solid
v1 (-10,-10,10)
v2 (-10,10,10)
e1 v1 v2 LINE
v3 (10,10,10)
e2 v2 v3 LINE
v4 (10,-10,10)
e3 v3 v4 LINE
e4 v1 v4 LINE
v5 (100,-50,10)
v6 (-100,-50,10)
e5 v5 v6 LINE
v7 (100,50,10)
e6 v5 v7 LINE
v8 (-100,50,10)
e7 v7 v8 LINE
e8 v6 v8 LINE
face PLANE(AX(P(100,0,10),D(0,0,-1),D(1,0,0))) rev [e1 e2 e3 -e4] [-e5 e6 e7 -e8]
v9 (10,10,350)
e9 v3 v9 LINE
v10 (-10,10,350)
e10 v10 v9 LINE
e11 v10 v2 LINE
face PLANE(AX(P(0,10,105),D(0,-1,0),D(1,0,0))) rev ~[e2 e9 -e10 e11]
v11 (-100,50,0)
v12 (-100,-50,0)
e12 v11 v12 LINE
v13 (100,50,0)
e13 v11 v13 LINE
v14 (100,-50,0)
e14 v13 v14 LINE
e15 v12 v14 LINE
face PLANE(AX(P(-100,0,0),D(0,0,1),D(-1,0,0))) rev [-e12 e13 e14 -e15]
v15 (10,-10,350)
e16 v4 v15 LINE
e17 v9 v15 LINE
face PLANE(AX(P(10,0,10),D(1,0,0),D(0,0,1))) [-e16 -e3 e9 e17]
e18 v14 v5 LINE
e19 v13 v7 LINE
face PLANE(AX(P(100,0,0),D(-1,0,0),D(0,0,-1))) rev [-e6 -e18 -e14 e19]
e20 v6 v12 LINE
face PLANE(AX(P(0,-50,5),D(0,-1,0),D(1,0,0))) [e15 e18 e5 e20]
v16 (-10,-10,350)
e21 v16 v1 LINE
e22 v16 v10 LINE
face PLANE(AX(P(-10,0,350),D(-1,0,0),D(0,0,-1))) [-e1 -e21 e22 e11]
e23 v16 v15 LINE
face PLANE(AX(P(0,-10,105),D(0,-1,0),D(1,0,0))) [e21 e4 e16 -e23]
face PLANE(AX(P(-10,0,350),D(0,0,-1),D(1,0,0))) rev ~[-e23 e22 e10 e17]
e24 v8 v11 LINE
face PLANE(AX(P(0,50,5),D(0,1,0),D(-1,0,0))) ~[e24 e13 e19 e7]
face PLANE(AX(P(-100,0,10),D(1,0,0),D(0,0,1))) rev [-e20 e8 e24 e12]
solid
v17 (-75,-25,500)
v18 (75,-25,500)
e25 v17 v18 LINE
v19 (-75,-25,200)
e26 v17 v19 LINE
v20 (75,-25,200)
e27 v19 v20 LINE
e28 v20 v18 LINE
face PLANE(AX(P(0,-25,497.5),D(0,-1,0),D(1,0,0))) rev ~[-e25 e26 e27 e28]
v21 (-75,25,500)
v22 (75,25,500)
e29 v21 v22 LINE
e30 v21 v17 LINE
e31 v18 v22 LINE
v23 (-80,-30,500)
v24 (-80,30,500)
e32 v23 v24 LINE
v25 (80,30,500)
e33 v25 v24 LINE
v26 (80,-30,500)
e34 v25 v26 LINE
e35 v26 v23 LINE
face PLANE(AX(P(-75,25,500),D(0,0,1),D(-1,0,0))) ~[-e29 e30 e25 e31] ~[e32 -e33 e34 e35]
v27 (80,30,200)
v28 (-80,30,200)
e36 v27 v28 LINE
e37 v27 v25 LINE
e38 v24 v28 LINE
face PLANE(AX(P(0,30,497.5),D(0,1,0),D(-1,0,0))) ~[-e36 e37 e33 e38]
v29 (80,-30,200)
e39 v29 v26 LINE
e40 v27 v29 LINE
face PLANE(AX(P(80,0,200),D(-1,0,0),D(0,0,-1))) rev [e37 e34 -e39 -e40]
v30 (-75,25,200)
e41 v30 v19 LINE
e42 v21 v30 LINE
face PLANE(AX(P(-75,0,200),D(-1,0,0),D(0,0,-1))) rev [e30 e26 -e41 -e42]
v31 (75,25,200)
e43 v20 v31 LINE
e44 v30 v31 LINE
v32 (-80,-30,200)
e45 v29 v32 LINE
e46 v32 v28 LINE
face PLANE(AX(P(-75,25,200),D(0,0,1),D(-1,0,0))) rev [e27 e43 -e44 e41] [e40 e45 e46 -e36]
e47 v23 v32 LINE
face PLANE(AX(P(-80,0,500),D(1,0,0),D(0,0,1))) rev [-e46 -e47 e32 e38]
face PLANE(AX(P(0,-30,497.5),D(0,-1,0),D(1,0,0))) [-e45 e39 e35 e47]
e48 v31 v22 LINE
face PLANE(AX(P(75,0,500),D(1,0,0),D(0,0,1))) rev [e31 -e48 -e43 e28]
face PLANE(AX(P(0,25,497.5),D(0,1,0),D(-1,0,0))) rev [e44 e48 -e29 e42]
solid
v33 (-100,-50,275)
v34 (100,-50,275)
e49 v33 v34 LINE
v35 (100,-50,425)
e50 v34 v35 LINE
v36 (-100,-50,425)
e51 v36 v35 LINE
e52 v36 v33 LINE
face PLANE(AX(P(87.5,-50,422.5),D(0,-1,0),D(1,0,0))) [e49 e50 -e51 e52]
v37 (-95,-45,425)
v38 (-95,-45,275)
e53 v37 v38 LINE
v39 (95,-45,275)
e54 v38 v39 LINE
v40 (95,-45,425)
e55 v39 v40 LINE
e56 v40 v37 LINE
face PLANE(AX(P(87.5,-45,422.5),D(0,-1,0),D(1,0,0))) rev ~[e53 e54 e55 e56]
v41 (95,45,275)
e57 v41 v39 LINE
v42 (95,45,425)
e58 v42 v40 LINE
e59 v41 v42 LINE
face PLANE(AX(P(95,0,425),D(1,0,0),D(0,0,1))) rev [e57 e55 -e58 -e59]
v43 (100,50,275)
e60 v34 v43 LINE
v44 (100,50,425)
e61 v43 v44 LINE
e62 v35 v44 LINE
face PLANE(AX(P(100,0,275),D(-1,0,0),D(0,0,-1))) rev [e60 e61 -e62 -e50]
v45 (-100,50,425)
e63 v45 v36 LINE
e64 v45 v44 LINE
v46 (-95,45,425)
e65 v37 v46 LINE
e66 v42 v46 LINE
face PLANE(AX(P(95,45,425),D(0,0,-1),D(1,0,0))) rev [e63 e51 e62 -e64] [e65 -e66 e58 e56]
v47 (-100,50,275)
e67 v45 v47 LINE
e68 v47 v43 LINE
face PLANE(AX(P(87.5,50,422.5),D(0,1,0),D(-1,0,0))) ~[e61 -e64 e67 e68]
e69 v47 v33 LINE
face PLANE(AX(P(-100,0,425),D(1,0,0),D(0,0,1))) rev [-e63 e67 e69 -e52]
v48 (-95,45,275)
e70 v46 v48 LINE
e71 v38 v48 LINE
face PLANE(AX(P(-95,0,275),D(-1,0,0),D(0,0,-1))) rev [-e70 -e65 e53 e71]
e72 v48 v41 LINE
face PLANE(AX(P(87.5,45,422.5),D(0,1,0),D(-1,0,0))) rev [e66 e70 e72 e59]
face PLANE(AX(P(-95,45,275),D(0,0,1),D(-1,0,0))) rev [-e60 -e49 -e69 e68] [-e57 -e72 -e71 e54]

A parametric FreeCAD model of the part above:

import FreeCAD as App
import Part
import Sketcher

V = App.Vector


def add_polygon(sketch, points):
    """Adds a closed chain of lines whose ends are joined by coincident constraints."""
    first, n = sketch.GeometryCount, len(points)
    for a, b in zip(points, points[1:] + points[:1]):
        sketch.addGeometry(Part.LineSegment(App.Vector(*a, 0), App.Vector(*b, 0)), False)
    for i in range(n):
        sketch.addConstraint(Sketcher.Constraint("Coincident", first + i, 2, first + (i + 1) % n, 1))

doc = App.newDocument("Part")
body = doc.addObject("PartDesign::Body", "Body")

# Sketch on XZ plane
sketch1 = body.newObject("Sketcher::SketchObject", "Sketch")
sketch1.AttachmentSupport = (doc.getObject("XZ_Plane"), [""])
sketch1.MapMode = "FlatFace"
add_polygon(sketch1, [(-10, 10), (10, 10), (10, 350), (-10, 350)])  # lines 0-3
sketch1.addConstraint([
    Sketcher.Constraint("Horizontal", 0),
    Sketcher.Constraint("Vertical", 1),
    Sketcher.Constraint("Horizontal", 2),
    Sketcher.Constraint("Vertical", 3),
    Sketcher.Constraint("DistanceX", 0, 1, 0, 2, 20.0),
    Sketcher.Constraint("DistanceY", 1, 1, 1, 2, 340.0),
    Sketcher.Constraint("DistanceX", -1, 1, 0, 2, 10.0),
    Sketcher.Constraint("DistanceY", -1, 1, 0, 2, 10.0),
])
pad1 = body.newObject("PartDesign::Pad", "Pad")
pad1.Profile = sketch1
pad1.Type = "TwoLengths"
pad1.Length = 10
pad1.Length2 = 10

# Sketch on XZ plane
sketch2 = body.newObject("Sketcher::SketchObject", "Sketch001")
sketch2.AttachmentSupport = (doc.getObject("XZ_Plane"), [""])
sketch2.MapMode = "FlatFace"
add_polygon(sketch2, [(-100, 10), (-100, 0), (100, 0), (100, 10)])  # lines 0-3
sketch2.addConstraint([
    Sketcher.Constraint("Vertical", 0),
    Sketcher.Constraint("Horizontal", 1),
    Sketcher.Constraint("Vertical", 2),
    Sketcher.Constraint("Horizontal", 3),
    Sketcher.Constraint("Symmetric", 0, 2, 1, 2, -1, 1),
    Sketcher.Constraint("DistanceX", 1, 1, 1, 2, 200.0),
    Sketcher.Constraint("DistanceY", 0, 2, 0, 1, 10.0),
])
pad2 = body.newObject("PartDesign::Pad", "Pad001")
pad2.Profile = sketch2
pad2.Length = 50
body2 = doc.addObject("PartDesign::Body", "Body001")

# Sketch on XZ plane
sketch3 = body2.newObject("Sketcher::SketchObject", "Sketch002")
sketch3.AttachmentSupport = (doc.getObject("XZ_Plane001"), [""])
sketch3.MapMode = "FlatFace"
add_polygon(sketch3, [(-95, 425), (-100, 425), (-100, 275), (-95, 275)])  # lines 0-3
sketch3.addConstraint([
    Sketcher.Constraint("Horizontal", 0),
    Sketcher.Constraint("Vertical", 1),
    Sketcher.Constraint("Horizontal", 2),
    Sketcher.Constraint("Vertical", 3),
    Sketcher.Constraint("DistanceX", 0, 2, 0, 1, 5.0),
    Sketcher.Constraint("DistanceY", 1, 2, 1, 1, 150.0),
    Sketcher.Constraint("DistanceX", 0, 2, -1, 1, 100.0),
    Sketcher.Constraint("DistanceY", -1, 1, 0, 2, 425.0),
])
pad3 = body2.newObject("PartDesign::Pad", "Pad002")
pad3.Profile = sketch3
pad3.Length = 50
body3 = doc.addObject("PartDesign::Body", "Body002")

# Sketch on XZ plane
sketch4 = body3.newObject("Sketcher::SketchObject", "Sketch003")
sketch4.AttachmentSupport = (doc.getObject("XZ_Plane002"), [""])
sketch4.MapMode = "FlatFace"
add_polygon(sketch4, [(100, 425), (95, 425), (95, 275), (100, 275)])  # lines 0-3
sketch4.addConstraint([
    Sketcher.Constraint("Horizontal", 0),
    Sketcher.Constraint("Vertical", 1),
    Sketcher.Constraint("Horizontal", 2),
    Sketcher.Constraint("Vertical", 3),
    Sketcher.Constraint("DistanceX", 0, 2, 0, 1, 5.0),
    Sketcher.Constraint("DistanceY", 1, 2, 1, 1, 150.0),
    Sketcher.Constraint("DistanceX", -1, 1, 0, 2, 95.0),
    Sketcher.Constraint("DistanceY", -1, 1, 0, 2, 425.0),
])
pad4 = body3.newObject("PartDesign::Pad", "Pad003")
pad4.Profile = sketch4
pad4.Length = 50
body2.AllowCompound = True
doc.recompute()

boolean = body2.newObject("PartDesign::Boolean", "Boolean")
boolean.Type = "Fuse"
boolean.addObjects([body3])

# Sketch on XZ plane
sketch5 = body2.newObject("Sketcher::SketchObject", "Sketch004")
sketch5.AttachmentSupport = (doc.getObject("XZ_Plane001"), [""])
sketch5.MapMode = "FlatFace"
sketch5.AttachmentOffset = App.Placement(V(0, 0, 45), App.Rotation())
add_polygon(sketch5, [(95, 425), (-95, 425), (-95, 275), (95, 275)])  # lines 0-3
sketch5.addConstraint([
    Sketcher.Constraint("Horizontal", 0),
    Sketcher.Constraint("Vertical", 1),
    Sketcher.Constraint("Horizontal", 2),
    Sketcher.Constraint("Vertical", 3),
    Sketcher.Constraint("DistanceX", 0, 2, 0, 1, 190.0),
    Sketcher.Constraint("DistanceY", 1, 2, 1, 1, 150.0),
    Sketcher.Constraint("DistanceX", 0, 2, -1, 1, 95.0),
    Sketcher.Constraint("DistanceY", -1, 1, 0, 2, 425.0),
])
pad5 = body2.newObject("PartDesign::Pad", "Pad004")
pad5.Profile = sketch5
pad5.Length = 5
body4 = doc.addObject("PartDesign::Body", "Body003")

# Sketch on XZ plane
sketch6 = body4.newObject("Sketcher::SketchObject", "Sketch005")
sketch6.AttachmentSupport = (doc.getObject("XZ_Plane003"), [""])
sketch6.MapMode = "FlatFace"
add_polygon(sketch6, [(80, 500), (75, 500), (75, 200), (80, 200)])  # lines 0-3
sketch6.addConstraint([
    Sketcher.Constraint("Horizontal", 0),
    Sketcher.Constraint("Vertical", 1),
    Sketcher.Constraint("Horizontal", 2),
    Sketcher.Constraint("Vertical", 3),
    Sketcher.Constraint("DistanceX", 0, 2, 0, 1, 5.0),
    Sketcher.Constraint("DistanceY", 1, 2, 1, 1, 300.0),
    Sketcher.Constraint("DistanceX", -1, 1, 0, 2, 75.0),
    Sketcher.Constraint("DistanceY", -1, 1, 0, 2, 500.0),
])
pad6 = body4.newObject("PartDesign::Pad", "Pad005")
pad6.Profile = sketch6
pad6.Length = 30
body5 = doc.addObject("PartDesign::Body", "Body004")

# Sketch on XZ plane
sketch7 = body5.newObject("Sketcher::SketchObject", "Sketch006")
sketch7.AttachmentSupport = (doc.getObject("XZ_Plane004"), [""])
sketch7.MapMode = "FlatFace"
add_polygon(sketch7, [(-80, 200), (-75, 200), (-75, 500), (-80, 500)])  # lines 0-3
sketch7.addConstraint([
    Sketcher.Constraint("Horizontal", 0),
    Sketcher.Constraint("Vertical", 1),
    Sketcher.Constraint("Horizontal", 2),
    Sketcher.Constraint("Vertical", 3),
    Sketcher.Constraint("DistanceX", 0, 1, 0, 2, 5.0),
    Sketcher.Constraint("DistanceY", 1, 1, 1, 2, 300.0),
    Sketcher.Constraint("DistanceX", 0, 2, -1, 1, 75.0),
    Sketcher.Constraint("DistanceY", -1, 1, 0, 2, 200.0),
])
pad7 = body5.newObject("PartDesign::Pad", "Pad006")
pad7.Profile = sketch7
pad7.Length = 30
body4.AllowCompound = True
doc.recompute()

boolean2 = body4.newObject("PartDesign::Boolean", "Boolean001")
boolean2.Type = "Fuse"
boolean2.addObjects([body5])

# Sketch on XZ plane
sketch8 = body4.newObject("Sketcher::SketchObject", "Sketch007")
sketch8.AttachmentSupport = (doc.getObject("XZ_Plane003"), [""])
sketch8.MapMode = "FlatFace"
sketch8.AttachmentOffset = App.Placement(V(0, 0, 25), App.Rotation())
add_polygon(sketch8, [(-75, 500), (-75, 200), (75, 200), (75, 500)])  # lines 0-3
sketch8.addConstraint([
    Sketcher.Constraint("Vertical", 0),
    Sketcher.Constraint("Horizontal", 1),
    Sketcher.Constraint("Vertical", 2),
    Sketcher.Constraint("Horizontal", 3),
    Sketcher.Constraint("DistanceX", 1, 1, 1, 2, 150.0),
    Sketcher.Constraint("DistanceY", 0, 2, 0, 1, 300.0),
    Sketcher.Constraint("DistanceX", 0, 2, -1, 1, 75.0),
    Sketcher.Constraint("DistanceY", -1, 1, 0, 2, 200.0),
])
pad8 = body4.newObject("PartDesign::Pad", "Pad007")
pad8.Profile = sketch8
pad8.Length = 5
body6 = doc.addObject("PartDesign::Body", "Body005")
body6.AllowCompound = True
doc.recompute()

body6.BaseFeature = body
doc.recompute()

body7 = doc.addObject("PartDesign::Body", "Body006")
body7.BaseFeature = body2
boolean3 = body6.newObject("PartDesign::Boolean", "Boolean002")
boolean3.Type = "Fuse"
boolean3.addObjects([body7])
doc.recompute()

body8 = doc.addObject("PartDesign::Body", "Body007")
body8.BaseFeature = body4
boolean4 = body6.newObject("PartDesign::Boolean", "Boolean003")
boolean4.Type = "Fuse"
boolean4.addObjects([body8])
doc.recompute()

mirroring = doc.addObject("Part::Mirroring", "Mirroring")
mirroring.Source = body4
mirroring.Base = V(0, 0, 0)
mirroring.Normal = V(0, -1, 0)
body9 = doc.addObject("PartDesign::Body", "Body008")
body9.BaseFeature = mirroring
boolean5 = body6.newObject("PartDesign::Boolean", "Boolean004")
boolean5.Type = "Fuse"
boolean5.addObjects([body9])
doc.recompute()

mirroring2 = doc.addObject("Part::Mirroring", "Mirroring001")
mirroring2.Source = body2
mirroring2.Base = V(0, 0, 0)
mirroring2.Normal = V(0, -1, 0)
body10 = doc.addObject("PartDesign::Body", "Body009")
body10.BaseFeature = mirroring2
boolean6 = body6.newObject("PartDesign::Boolean", "Boolean005")
boolean6.Type = "Fuse"
boolean6.addObjects([body10])
doc.recompute()

mirroring3 = doc.addObject("Part::Mirroring", "Mirroring002")
mirroring3.Source = body
mirroring3.Base = V(0, 0, 0)
mirroring3.Normal = V(0, -1, 0)
body11 = doc.addObject("PartDesign::Body", "Body010")
body11.BaseFeature = mirroring3
boolean7 = body6.newObject("PartDesign::Boolean", "Boolean006")
boolean7.Type = "Fuse"
boolean7.addObjects([body11])
doc.recompute()
mirroring.Visibility = False
mirroring2.Visibility = False
mirroring3.Visibility = False

doc.recompute()
